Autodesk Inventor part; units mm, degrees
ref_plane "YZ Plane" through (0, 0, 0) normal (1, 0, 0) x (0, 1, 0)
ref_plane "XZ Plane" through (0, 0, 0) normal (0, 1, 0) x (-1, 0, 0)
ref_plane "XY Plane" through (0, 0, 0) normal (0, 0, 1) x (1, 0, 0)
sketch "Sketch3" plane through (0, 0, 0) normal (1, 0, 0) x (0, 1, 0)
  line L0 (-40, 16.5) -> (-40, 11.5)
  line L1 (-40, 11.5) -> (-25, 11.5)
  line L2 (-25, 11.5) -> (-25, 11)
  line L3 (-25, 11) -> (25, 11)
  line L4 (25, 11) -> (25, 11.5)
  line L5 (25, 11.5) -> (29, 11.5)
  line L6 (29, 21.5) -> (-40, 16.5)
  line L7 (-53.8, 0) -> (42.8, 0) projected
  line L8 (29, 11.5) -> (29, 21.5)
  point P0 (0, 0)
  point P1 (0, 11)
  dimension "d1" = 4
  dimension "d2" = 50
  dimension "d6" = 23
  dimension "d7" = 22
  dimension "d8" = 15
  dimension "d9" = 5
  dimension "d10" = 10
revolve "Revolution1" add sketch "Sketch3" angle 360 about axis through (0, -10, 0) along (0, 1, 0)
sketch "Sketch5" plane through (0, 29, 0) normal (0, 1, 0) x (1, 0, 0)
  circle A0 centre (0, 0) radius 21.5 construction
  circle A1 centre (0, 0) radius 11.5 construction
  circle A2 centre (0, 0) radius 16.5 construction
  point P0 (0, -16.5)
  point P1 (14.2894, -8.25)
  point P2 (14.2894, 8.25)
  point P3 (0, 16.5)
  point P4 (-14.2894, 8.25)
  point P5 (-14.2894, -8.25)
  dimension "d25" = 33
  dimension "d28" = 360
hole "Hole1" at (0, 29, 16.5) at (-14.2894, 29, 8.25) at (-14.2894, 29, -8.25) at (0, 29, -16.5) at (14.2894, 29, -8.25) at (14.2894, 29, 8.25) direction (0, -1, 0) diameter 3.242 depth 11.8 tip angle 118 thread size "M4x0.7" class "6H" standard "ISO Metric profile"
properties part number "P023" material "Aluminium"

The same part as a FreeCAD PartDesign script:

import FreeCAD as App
import Part
import Sketcher
from FreeCAD import Vector
Q = App.Units.Quantity

doc = App.newDocument("Part")
body = doc.addObject("PartDesign::Body", "Body")

# Sketch on YZ plane
sketch1 = body.newObject("Sketcher::SketchObject", "Sketch")
sketch1.AttachmentSupport = (doc.getObject("YZ_Plane"), [""])
sketch1.MapMode = "FlatFace"
sketch1.addGeometry(Part.LineSegment(Vector(29, 21.5, 0), Vector(-40, 16.5, 0)), False)
sketch1.addGeometry(Part.LineSegment(Vector(-40, 16.5, 0), Vector(-40, 11.5, 0)), False)
sketch1.addGeometry(Part.LineSegment(Vector(-40, 11.5, 0), Vector(-25, 11.5, 0)), False)
sketch1.addGeometry(Part.LineSegment(Vector(-25, 11.5, 0), Vector(-25, 11, 0)), False)
sketch1.addGeometry(Part.LineSegment(Vector(-25, 11, 0), Vector(25, 11, 0)), False)
sketch1.addGeometry(Part.LineSegment(Vector(25, 11, 0), Vector(25, 11.5, 0)), False)
sketch1.addGeometry(Part.LineSegment(Vector(25, 11.5, 0), Vector(29, 11.5, 0)), False)
sketch1.addGeometry(Part.LineSegment(Vector(29, 11.5, 0), Vector(29, 21.5, 0)), False)
sketch1.addConstraint(Sketcher.Constraint("Coincident", 0, 2, 1, 1))
sketch1.addConstraint(Sketcher.Constraint("Coincident", 1, 2, 2, 1))
sketch1.addConstraint(Sketcher.Constraint("Coincident", 2, 2, 3, 1))
sketch1.addConstraint(Sketcher.Constraint("Coincident", 3, 2, 4, 1))
sketch1.addConstraint(Sketcher.Constraint("Coincident", 4, 2, 5, 1))
sketch1.addConstraint(Sketcher.Constraint("Coincident", 5, 2, 6, 1))
sketch1.addConstraint(Sketcher.Constraint("Coincident", 6, 2, 7, 1))
sketch1.addConstraint(Sketcher.Constraint("Coincident", 7, 2, 0, 1))
sketch1.addConstraint(Sketcher.Constraint("Vertical", 1))
sketch1.addConstraint(Sketcher.Constraint("Horizontal", 2))
sketch1.addConstraint(Sketcher.Constraint("Vertical", 3))
sketch1.addConstraint(Sketcher.Constraint("Horizontal", 4))
sketch1.addConstraint(Sketcher.Constraint("Vertical", 5))
sketch1.addConstraint(Sketcher.Constraint("Horizontal", 6))
sketch1.addConstraint(Sketcher.Constraint("Vertical", 7))
sketch1.addConstraint(Sketcher.Constraint("Symmetric", 2, 2, 5, 2, -2))
sketch1.addConstraint(Sketcher.Constraint("DistanceX", 2, 1, 2, 2, Q("15 mm")))
sketch1.addConstraint(Sketcher.Constraint("DistanceX", 4, 1, 4, 2, Q("50 mm")))
sketch1.addConstraint(Sketcher.Constraint("DistanceX", 6, 1, 6, 2, Q("4 mm")))
sketch1.addConstraint(Sketcher.Constraint("DistanceY", 1, 2, 1, 1, Q("5 mm")))
sketch1.addConstraint(Sketcher.Constraint("DistanceY", 7, 1, 7, 2, Q("10 mm")))
sketch1.addConstraint(Sketcher.Constraint("DistanceY", 3, 2, 3, 1, Q("0.5 mm")))
sketch1.addConstraint(Sketcher.Constraint("DistanceY", -1, 1, 3, 2, Q("11 mm")))
revolution = body.newObject("PartDesign::Revolution", "Revolution")
revolution.Profile = sketch1
revolution.ReferenceAxis = (sketch1, ["H_Axis"])
revolution.Angle = 360

# Sketch on XZ plane
sketch2 = body.newObject("Sketcher::SketchObject", "Sketch001")
sketch2.AttachmentSupport = (doc.getObject("XZ_Plane"), [""])
sketch2.MapMode = "FlatFace"
sketch2.AttachmentOffset = App.Placement(Vector(0, 0, -29), App.Rotation())
sketch2.addGeometry(Part.Circle(Vector(0, 16.5, 0), Vector(0, 0, 1), 1.621), False)
sketch2.addGeometry(Part.Circle(Vector(-14.2894, 8.25, 0), Vector(0, 0, 1), 1.621), False)
sketch2.addGeometry(Part.Circle(Vector(-14.2894, -8.25, 0), Vector(0, 0, 1), 1.621), False)
sketch2.addGeometry(Part.Circle(Vector(0, -16.5, 0), Vector(0, 0, 1), 1.621), False)
sketch2.addGeometry(Part.Circle(Vector(14.2894, -8.25, 0), Vector(0, 0, 1), 1.621), False)
sketch2.addGeometry(Part.Circle(Vector(14.2894, 8.25, 0), Vector(0, 0, 1), 1.621), False)
sketch2.addConstraint(Sketcher.Constraint("Equal", 0, 1))
sketch2.addConstraint(Sketcher.Constraint("Equal", 1, 2))
sketch2.addConstraint(Sketcher.Constraint("Equal", 2, 3))
sketch2.addConstraint(Sketcher.Constraint("Equal", 3, 4))
sketch2.addConstraint(Sketcher.Constraint("Equal", 4, 5))
sketch2.addConstraint(Sketcher.Constraint("Symmetric", 0, 3, 3, 3, -1, 1))
sketch2.addConstraint(Sketcher.Constraint("Symmetric", 1, 3, 4, 3, -1, 1))
sketch2.addConstraint(Sketcher.Constraint("Symmetric", 2, 3, 5, 3, -1, 1))
sketch2.addConstraint(Sketcher.Constraint("Symmetric", 2, 3, 4, 3, -2))
sketch2.addConstraint(Sketcher.Constraint("PointOnObject", 0, 3, -2))
sketch2.addConstraint(Sketcher.Constraint("Diameter", 0, Q("3.242 mm")))
sketch2.addConstraint(Sketcher.Constraint("DistanceY", 3, 3, 0, 3, Q("33 mm")))
sketch2.addConstraint(Sketcher.Constraint("DistanceY", 2, 3, 1, 3, Q("16.5 mm")))
sketch2.addConstraint(Sketcher.Constraint("DistanceX", 1, 3, -1, 1, Q("14.2894 mm")))
doc.recompute()
hole = body.newObject("PartDesign::Hole", "Hole")
hole.Profile = sketch2
hole.ThreadType = "None"
hole.Diameter = 3.242
hole.DepthType = "Dimension"
hole.Depth = 11.8
hole.DrillPoint = "Angled"
hole.DrillPointAngle = 118
hole.Reversed = True

doc.recompute()
